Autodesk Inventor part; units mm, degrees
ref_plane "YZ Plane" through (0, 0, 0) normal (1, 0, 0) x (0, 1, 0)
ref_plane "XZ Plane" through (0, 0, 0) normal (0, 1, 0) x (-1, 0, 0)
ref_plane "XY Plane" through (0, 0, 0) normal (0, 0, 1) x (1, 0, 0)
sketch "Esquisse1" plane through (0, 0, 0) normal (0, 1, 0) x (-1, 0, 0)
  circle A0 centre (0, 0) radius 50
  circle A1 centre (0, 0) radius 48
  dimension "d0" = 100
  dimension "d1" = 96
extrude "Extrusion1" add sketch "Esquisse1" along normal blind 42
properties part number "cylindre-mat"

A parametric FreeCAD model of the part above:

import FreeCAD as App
import Part
import Sketcher
Q = App.Units.Quantity

doc = App.newDocument("Part")
params = doc.addObject("Spreadsheet::Sheet", "Params")
for row, (alias, value) in enumerate([
    ("sketch1_diameter", "100 mm"),
    ("sketch1_diameter2", "96 mm"),
    ("pad1_length", "42 mm"),
], start=1):
    params.set(f"A{row}", alias)
    params.set(f"B{row}", "=" + value)
    params.setAlias(f"B{row}", alias)

body = doc.addObject("PartDesign::Body", "Body")

# Sketch on XZ plane
sketch1 = doc.addObject("Sketcher::SketchObject", "Sketch")
body.addObject(sketch1)
sketch1.AttachmentSupport = (doc.XZ_Plane, [""])
sketch1.MapMode = "FlatFace"
sketch1.addGeometry(Part.Circle(App.Vector(0, 0, 0), App.Vector(0, 0, 1), 50), False)
sketch1.addGeometry(Part.Circle(App.Vector(0, 0, 0), App.Vector(0, 0, 1), 48), False)
sketch1.addConstraint(Sketcher.Constraint("Coincident", 0, 3, -1, 1))
sketch1.addConstraint(Sketcher.Constraint("Coincident", 1, 3, -1, 1))
sketch1.addConstraint(Sketcher.Constraint("Diameter", 0, Q("100 mm")))
sketch1.addConstraint(Sketcher.Constraint("Diameter", 1, Q("96 mm")))
sketch1.setExpression("Constraints[2]", "Params.sketch1_diameter")
sketch1.setExpression("Constraints[3]", "Params.sketch1_diameter2")
pad1 = doc.addObject("PartDesign::Pad", "Pad")
body.addObject(pad1)
pad1.Profile = sketch1
pad1.setExpression("Length", "Params.pad1_length")
pad1.Reversed = True

doc.recompute()
